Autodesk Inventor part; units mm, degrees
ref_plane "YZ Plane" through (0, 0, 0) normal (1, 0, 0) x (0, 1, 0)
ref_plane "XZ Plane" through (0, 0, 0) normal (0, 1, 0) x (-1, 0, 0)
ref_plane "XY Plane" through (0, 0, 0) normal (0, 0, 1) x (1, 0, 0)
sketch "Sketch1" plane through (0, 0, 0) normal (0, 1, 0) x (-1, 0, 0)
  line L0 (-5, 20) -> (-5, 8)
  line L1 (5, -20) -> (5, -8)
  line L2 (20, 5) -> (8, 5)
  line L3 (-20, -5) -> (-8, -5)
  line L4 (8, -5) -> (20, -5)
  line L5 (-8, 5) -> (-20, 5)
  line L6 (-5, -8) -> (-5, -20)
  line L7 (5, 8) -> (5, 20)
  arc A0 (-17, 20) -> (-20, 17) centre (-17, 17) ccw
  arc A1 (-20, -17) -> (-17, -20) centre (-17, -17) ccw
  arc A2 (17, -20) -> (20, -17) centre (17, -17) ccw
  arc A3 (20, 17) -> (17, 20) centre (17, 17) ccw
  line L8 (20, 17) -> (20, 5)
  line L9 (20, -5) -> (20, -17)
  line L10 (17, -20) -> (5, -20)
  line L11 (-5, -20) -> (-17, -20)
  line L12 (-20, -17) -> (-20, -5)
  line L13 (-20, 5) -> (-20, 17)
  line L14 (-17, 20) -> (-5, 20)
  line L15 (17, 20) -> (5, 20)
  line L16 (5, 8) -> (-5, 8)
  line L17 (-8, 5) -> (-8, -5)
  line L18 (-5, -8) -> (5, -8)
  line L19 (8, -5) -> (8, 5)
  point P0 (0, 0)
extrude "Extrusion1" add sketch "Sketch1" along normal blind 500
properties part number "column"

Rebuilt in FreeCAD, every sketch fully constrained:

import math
import FreeCAD as App
import Part
import Sketcher

doc = App.newDocument("Part")
body = doc.addObject("PartDesign::Body", "Body")

# Sketch on XZ plane
sketch1 = doc.addObject("Sketcher::SketchObject", "Sketch")
body.addObject(sketch1)
sketch1.AttachmentSupport = (doc.XZ_Plane, [""])
sketch1.MapMode = "FlatFace"
sketch1.addGeometry(Part.LineSegment(App.Vector(5, 8, 0), App.Vector(5, 20, 0)), False)
sketch1.addGeometry(Part.LineSegment(App.Vector(5, 20, 0), App.Vector(17, 20, 0)), False)
sketch1.addGeometry(Part.ArcOfCircle(Part.Circle(App.Vector(17, 17, 0), App.Vector(0, 0, 1), 3), math.radians(0), math.radians(90)), False)
sketch1.addGeometry(Part.LineSegment(App.Vector(20, 17, 0), App.Vector(20, 5, 0)), False)
sketch1.addGeometry(Part.LineSegment(App.Vector(20, 5, 0), App.Vector(8, 5, 0)), False)
sketch1.addGeometry(Part.LineSegment(App.Vector(8, 5, 0), App.Vector(8, -5, 0)), False)
sketch1.addGeometry(Part.LineSegment(App.Vector(8, -5, 0), App.Vector(20, -5, 0)), False)
sketch1.addGeometry(Part.LineSegment(App.Vector(20, -5, 0), App.Vector(20, -17, 0)), False)
sketch1.addGeometry(Part.ArcOfCircle(Part.Circle(App.Vector(17, -17, 0), App.Vector(0, 0, 1), 3), math.radians(-90), math.radians(0)), False)
sketch1.addGeometry(Part.LineSegment(App.Vector(17, -20, 0), App.Vector(5, -20, 0)), False)
sketch1.addGeometry(Part.LineSegment(App.Vector(5, -20, 0), App.Vector(5, -8, 0)), False)
sketch1.addGeometry(Part.LineSegment(App.Vector(5, -8, 0), App.Vector(-5, -8, 0)), False)
sketch1.addGeometry(Part.LineSegment(App.Vector(-5, -8, 0), App.Vector(-5, -20, 0)), False)
sketch1.addGeometry(Part.LineSegment(App.Vector(-5, -20, 0), App.Vector(-17, -20, 0)), False)
sketch1.addGeometry(Part.ArcOfCircle(Part.Circle(App.Vector(-17, -17, 0), App.Vector(0, 0, 1), 3), math.radians(180), math.radians(270)), False)
sketch1.addGeometry(Part.LineSegment(App.Vector(-20, -17, 0), App.Vector(-20, -5, 0)), False)
sketch1.addGeometry(Part.LineSegment(App.Vector(-20, -5, 0), App.Vector(-8, -5, 0)), False)
sketch1.addGeometry(Part.LineSegment(App.Vector(-8, -5, 0), App.Vector(-8, 5, 0)), False)
sketch1.addGeometry(Part.LineSegment(App.Vector(-8, 5, 0), App.Vector(-20, 5, 0)), False)
sketch1.addGeometry(Part.LineSegment(App.Vector(-20, 5, 0), App.Vector(-20, 17, 0)), False)
sketch1.addGeometry(Part.ArcOfCircle(Part.Circle(App.Vector(-17, 17, 0), App.Vector(0, 0, 1), 3), math.radians(90), math.radians(180)), False)
sketch1.addGeometry(Part.LineSegment(App.Vector(-17, 20, 0), App.Vector(-5, 20, 0)), False)
sketch1.addGeometry(Part.LineSegment(App.Vector(-5, 20, 0), App.Vector(-5, 8, 0)), False)
sketch1.addGeometry(Part.LineSegment(App.Vector(-5, 8, 0), App.Vector(5, 8, 0)), False)
sketch1.addConstraint(Sketcher.Constraint("Coincident", 0, 2, 1, 1))
sketch1.addConstraint(Sketcher.Constraint("Tangent", 1, 2, 2, 2))
sketch1.addConstraint(Sketcher.Constraint("Tangent", 2, 1, 3, 1))
sketch1.addConstraint(Sketcher.Constraint("Coincident", 3, 2, 4, 1))
sketch1.addConstraint(Sketcher.Constraint("Coincident", 4, 2, 5, 1))
sketch1.addConstraint(Sketcher.Constraint("Coincident", 5, 2, 6, 1))
sketch1.addConstraint(Sketcher.Constraint("Coincident", 6, 2, 7, 1))
sketch1.addConstraint(Sketcher.Constraint("Tangent", 7, 2, 8, 2))
sketch1.addConstraint(Sketcher.Constraint("Tangent", 8, 1, 9, 1))
sketch1.addConstraint(Sketcher.Constraint("Coincident", 9, 2, 10, 1))
sketch1.addConstraint(Sketcher.Constraint("Coincident", 10, 2, 11, 1))
sketch1.addConstraint(Sketcher.Constraint("Coincident", 11, 2, 12, 1))
sketch1.addConstraint(Sketcher.Constraint("Coincident", 12, 2, 13, 1))
sketch1.addConstraint(Sketcher.Constraint("Tangent", 13, 2, 14, 2))
sketch1.addConstraint(Sketcher.Constraint("Tangent", 14, 1, 15, 1))
sketch1.addConstraint(Sketcher.Constraint("Coincident", 15, 2, 16, 1))
sketch1.addConstraint(Sketcher.Constraint("Coincident", 16, 2, 17, 1))
sketch1.addConstraint(Sketcher.Constraint("Coincident", 17, 2, 18, 1))
sketch1.addConstraint(Sketcher.Constraint("Coincident", 18, 2, 19, 1))
sketch1.addConstraint(Sketcher.Constraint("Tangent", 19, 2, 20, 2))
sketch1.addConstraint(Sketcher.Constraint("Tangent", 20, 1, 21, 1))
sketch1.addConstraint(Sketcher.Constraint("Coincident", 21, 2, 22, 1))
sketch1.addConstraint(Sketcher.Constraint("Coincident", 22, 2, 23, 1))
sketch1.addConstraint(Sketcher.Constraint("Coincident", 23, 2, 0, 1))
sketch1.addConstraint(Sketcher.Constraint("Vertical", 0))
sketch1.addConstraint(Sketcher.Constraint("Horizontal", 1))
sketch1.addConstraint(Sketcher.Constraint("Vertical", 3))
sketch1.addConstraint(Sketcher.Constraint("Horizontal", 4))
sketch1.addConstraint(Sketcher.Constraint("Vertical", 5))
sketch1.addConstraint(Sketcher.Constraint("Horizontal", 6))
sketch1.addConstraint(Sketcher.Constraint("Vertical", 7))
sketch1.addConstraint(Sketcher.Constraint("Horizontal", 9))
sketch1.addConstraint(Sketcher.Constraint("Vertical", 10))
sketch1.addConstraint(Sketcher.Constraint("Horizontal", 11))
sketch1.addConstraint(Sketcher.Constraint("Vertical", 12))
sketch1.addConstraint(Sketcher.Constraint("Horizontal", 13))
sketch1.addConstraint(Sketcher.Constraint("Vertical", 15))
sketch1.addConstraint(Sketcher.Constraint("Horizontal", 16))
sketch1.addConstraint(Sketcher.Constraint("Vertical", 17))
sketch1.addConstraint(Sketcher.Constraint("Horizontal", 18))
sketch1.addConstraint(Sketcher.Constraint("Vertical", 19))
sketch1.addConstraint(Sketcher.Constraint("Horizontal", 21))
sketch1.addConstraint(Sketcher.Constraint("Vertical", 22))
sketch1.addConstraint(Sketcher.Constraint("Horizontal", 23))
sketch1.addConstraint(Sketcher.Constraint("Equal", 2, 8))
sketch1.addConstraint(Sketcher.Constraint("Equal", 8, 14))
sketch1.addConstraint(Sketcher.Constraint("Equal", 14, 20))
sketch1.addConstraint(Sketcher.Constraint("Symmetric", 2, 3, 14, 3, -1, 1))
sketch1.addConstraint(Sketcher.Constraint("Symmetric", 8, 3, 20, 3, -1, 1))
sketch1.addConstraint(Sketcher.Constraint("Symmetric", 4, 2, 16, 2, -1, 1))
sketch1.addConstraint(Sketcher.Constraint("Symmetric", 10, 2, 22, 2, -1, 1))
sketch1.addConstraint(Sketcher.Constraint("Symmetric", 8, 3, 14, 3, -2))
sketch1.addConstraint(Sketcher.Constraint("Horizontal", 6, 2, 15, 2))
sketch1.addConstraint(Sketcher.Constraint("Horizontal", 4, 2, 17, 2))
sketch1.addConstraint(Sketcher.Constraint("Vertical", 0, 2, 9, 2))
sketch1.addConstraint(Sketcher.Constraint("Vertical", 12, 2, 21, 2))
sketch1.addConstraint(Sketcher.Constraint("Equal", 1, 4))
sketch1.addConstraint(Sketcher.Constraint("Equal", 21, 0))
sketch1.addConstraint(Sketcher.Constraint("Equal", 0, 3))
sketch1.addConstraint(Sketcher.Constraint("Equal", 23, 5))
sketch1.addConstraint(Sketcher.Constraint("Radius", 2, 3.0))
sketch1.addConstraint(Sketcher.Constraint("DistanceX", 1, 1, 1, 2, 12.0))
sketch1.addConstraint(Sketcher.Constraint("DistanceX", 11, 2, 11, 1, 10.0))
pad1 = doc.addObject("PartDesign::Pad", "Pad")
body.addObject(pad1)
pad1.Profile = sketch1
pad1.Length = 500
pad1.Reversed = True

doc.recompute()
